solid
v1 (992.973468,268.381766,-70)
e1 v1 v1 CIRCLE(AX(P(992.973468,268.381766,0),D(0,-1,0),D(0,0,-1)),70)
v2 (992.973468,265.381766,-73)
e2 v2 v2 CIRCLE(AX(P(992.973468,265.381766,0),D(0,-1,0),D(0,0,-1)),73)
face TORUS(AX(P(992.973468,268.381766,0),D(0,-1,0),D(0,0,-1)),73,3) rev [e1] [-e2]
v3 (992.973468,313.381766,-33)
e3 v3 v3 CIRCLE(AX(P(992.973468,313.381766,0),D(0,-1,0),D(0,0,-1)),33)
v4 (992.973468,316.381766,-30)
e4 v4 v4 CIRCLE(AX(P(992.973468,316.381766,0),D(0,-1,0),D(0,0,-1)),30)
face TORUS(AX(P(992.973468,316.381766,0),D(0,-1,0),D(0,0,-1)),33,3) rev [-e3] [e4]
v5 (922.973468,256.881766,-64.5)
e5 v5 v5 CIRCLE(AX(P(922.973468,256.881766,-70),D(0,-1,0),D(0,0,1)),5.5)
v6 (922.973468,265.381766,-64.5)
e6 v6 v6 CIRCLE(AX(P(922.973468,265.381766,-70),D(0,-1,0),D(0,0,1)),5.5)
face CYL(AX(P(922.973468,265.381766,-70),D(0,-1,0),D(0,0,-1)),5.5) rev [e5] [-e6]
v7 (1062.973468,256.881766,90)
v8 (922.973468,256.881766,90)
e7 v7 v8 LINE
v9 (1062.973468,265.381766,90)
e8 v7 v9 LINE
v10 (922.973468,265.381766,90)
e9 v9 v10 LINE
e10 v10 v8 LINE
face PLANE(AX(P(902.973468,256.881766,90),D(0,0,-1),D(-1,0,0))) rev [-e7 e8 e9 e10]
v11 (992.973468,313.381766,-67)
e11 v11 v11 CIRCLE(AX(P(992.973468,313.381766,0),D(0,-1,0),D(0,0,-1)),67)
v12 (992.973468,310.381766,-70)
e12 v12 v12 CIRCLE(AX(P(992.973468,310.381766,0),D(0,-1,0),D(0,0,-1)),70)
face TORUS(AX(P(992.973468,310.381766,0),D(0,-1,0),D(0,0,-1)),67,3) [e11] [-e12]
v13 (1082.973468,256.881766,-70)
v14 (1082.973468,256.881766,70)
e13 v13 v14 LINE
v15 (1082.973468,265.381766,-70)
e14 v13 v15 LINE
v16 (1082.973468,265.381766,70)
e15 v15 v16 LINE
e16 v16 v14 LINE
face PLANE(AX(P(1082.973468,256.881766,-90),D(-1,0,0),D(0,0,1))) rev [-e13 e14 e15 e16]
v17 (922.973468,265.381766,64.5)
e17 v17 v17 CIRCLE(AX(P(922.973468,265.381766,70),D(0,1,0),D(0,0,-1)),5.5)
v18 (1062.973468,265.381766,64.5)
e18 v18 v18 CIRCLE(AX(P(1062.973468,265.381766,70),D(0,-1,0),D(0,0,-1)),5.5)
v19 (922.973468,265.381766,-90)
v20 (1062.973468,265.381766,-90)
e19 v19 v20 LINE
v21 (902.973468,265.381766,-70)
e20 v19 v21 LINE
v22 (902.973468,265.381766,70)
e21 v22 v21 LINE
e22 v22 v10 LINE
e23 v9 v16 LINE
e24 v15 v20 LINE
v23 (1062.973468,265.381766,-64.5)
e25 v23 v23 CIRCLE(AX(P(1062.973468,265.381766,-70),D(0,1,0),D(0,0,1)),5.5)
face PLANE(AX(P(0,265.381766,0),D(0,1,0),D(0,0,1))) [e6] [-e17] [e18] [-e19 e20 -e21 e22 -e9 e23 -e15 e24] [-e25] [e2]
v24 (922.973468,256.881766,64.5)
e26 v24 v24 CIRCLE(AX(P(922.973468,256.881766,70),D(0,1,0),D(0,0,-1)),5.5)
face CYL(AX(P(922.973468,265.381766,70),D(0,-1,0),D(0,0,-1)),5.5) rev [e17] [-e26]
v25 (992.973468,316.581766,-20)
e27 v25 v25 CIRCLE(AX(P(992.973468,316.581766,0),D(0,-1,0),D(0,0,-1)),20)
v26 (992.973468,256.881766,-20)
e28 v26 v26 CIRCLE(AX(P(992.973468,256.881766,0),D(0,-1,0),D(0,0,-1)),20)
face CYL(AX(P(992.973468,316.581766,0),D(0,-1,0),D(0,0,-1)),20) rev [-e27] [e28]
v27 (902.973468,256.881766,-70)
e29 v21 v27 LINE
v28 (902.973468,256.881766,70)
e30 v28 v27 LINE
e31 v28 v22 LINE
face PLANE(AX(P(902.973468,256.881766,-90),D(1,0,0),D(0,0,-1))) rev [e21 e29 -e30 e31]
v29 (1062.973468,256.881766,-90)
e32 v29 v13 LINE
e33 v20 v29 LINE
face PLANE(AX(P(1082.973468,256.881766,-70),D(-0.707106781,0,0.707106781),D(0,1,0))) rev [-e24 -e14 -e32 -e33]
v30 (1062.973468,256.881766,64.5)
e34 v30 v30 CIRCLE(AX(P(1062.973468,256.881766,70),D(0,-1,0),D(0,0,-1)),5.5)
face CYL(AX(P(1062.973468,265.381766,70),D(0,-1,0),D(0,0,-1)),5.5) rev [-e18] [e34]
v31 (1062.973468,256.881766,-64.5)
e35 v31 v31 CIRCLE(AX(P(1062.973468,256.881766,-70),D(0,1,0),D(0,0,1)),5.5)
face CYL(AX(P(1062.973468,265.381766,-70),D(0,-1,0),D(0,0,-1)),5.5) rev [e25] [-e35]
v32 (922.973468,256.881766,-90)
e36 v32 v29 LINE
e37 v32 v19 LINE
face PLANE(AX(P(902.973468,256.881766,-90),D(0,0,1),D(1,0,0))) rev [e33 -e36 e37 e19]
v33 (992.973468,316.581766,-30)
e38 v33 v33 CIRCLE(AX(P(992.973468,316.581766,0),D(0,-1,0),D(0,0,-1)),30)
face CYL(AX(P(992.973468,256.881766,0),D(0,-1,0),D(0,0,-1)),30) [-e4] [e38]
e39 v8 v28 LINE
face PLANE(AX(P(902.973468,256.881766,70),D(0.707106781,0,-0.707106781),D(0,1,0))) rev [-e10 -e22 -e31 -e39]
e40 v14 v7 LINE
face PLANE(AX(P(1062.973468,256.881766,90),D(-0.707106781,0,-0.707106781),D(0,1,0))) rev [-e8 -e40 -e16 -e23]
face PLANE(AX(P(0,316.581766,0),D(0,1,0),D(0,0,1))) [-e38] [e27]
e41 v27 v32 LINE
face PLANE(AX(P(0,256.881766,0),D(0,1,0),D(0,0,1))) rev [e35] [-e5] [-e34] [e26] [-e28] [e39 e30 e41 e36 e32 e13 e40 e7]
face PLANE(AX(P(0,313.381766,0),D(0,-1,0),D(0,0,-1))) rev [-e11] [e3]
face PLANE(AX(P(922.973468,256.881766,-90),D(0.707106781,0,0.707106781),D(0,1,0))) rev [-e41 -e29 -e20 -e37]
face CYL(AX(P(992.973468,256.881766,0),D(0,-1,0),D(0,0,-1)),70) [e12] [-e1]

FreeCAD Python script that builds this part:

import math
import FreeCAD as App
import Part
import Sketcher
from FreeCAD import Vector
Q = App.Units.Quantity


def edges_at(feature, points):
    """Names of the edges that pass closest to the given points."""
    edges = feature.Shape.Edges
    near = lambda p: min(range(len(edges)), key=lambda i: edges[i].distToShape(Part.Vertex(*p))[0])
    return sorted({f"Edge{near(p) + 1}" for p in points})

doc = App.newDocument("Part")
body = doc.addObject("PartDesign::Body", "Body")

# Sketch on XY plane
sketch1 = body.newObject("Sketcher::SketchObject", "Sketch")
sketch1.AttachmentSupport = (doc.getObject("XY_Plane"), [""])
sketch1.MapMode = "FlatFace"
sketch1.addGeometry([
    Part.ArcOfCircle(Part.Circle(Vector(919.97, 268.38, 0), Vector(0, 0, 1), 3), math.radians(-90), math.radians(0)),  # 0
    Part.LineSegment(Vector(919.97, 265.38, 0), Vector(992.97, 265.38, 0)),  # 1
    Part.LineSegment(Vector(992.97, 265.38, 0), Vector(992.97, 316.58, 0)),  # 2
    Part.LineSegment(Vector(992.97, 316.58, 0), Vector(962.97, 316.58, 0)),  # 3
    Part.LineSegment(Vector(962.97, 316.58, 0), Vector(962.97, 316.38, 0)),  # 4
    Part.ArcOfCircle(Part.Circle(Vector(959.97, 316.38, 0), Vector(0, 0, 1), 3), math.radians(-90), math.radians(0)),  # 5
    Part.LineSegment(Vector(959.97, 313.38, 0), Vector(925.97, 313.38, 0)),  # 6
    Part.ArcOfCircle(Part.Circle(Vector(925.97, 310.38, 0), Vector(0, 0, 1), 3), math.radians(90), math.radians(180)),  # 7
    Part.LineSegment(Vector(922.97, 310.38, 0), Vector(922.97, 268.38, 0)),  # 8
], False)
sketch1.addGeometry(Part.LineSegment(Vector(992.97, 265.38, 0), Vector(992.97, 316.58, 0)), True)  # axis
sketch1.addConstraint([
    Sketcher.Constraint("Tangent", 0, 1, 1, 1),
    Sketcher.Constraint("Coincident", 1, 2, 2, 1),
    Sketcher.Constraint("Coincident", 2, 2, 3, 1),
    Sketcher.Constraint("Coincident", 3, 2, 4, 1),
    Sketcher.Constraint("Tangent", 4, 2, 5, 2),
    Sketcher.Constraint("Tangent", 5, 1, 6, 1),
    Sketcher.Constraint("Tangent", 6, 2, 7, 1),
    Sketcher.Constraint("Tangent", 7, 2, 8, 1),
    Sketcher.Constraint("Tangent", 8, 2, 0, 2),
    Sketcher.Constraint("Horizontal", 1),
    Sketcher.Constraint("Vertical", 2),
    Sketcher.Constraint("Horizontal", 3),
    Sketcher.Constraint("Vertical", 4),
    Sketcher.Constraint("Horizontal", 6),
    Sketcher.Constraint("Vertical", 8),
    Sketcher.Constraint("Vertical", 9),
    Sketcher.Constraint("Coincident", 9, 1, 1, 2),
    Sketcher.Constraint("Equal", 0, 5),
    Sketcher.Constraint("Equal", 5, 7),
    Sketcher.Constraint("Horizontal", 3, 2, 9, 2),
    Sketcher.Constraint("Radius", 0, Q("3 mm")),
    Sketcher.Constraint("DistanceX", 1, 1, 1, 2, Q("73 mm")),
    Sketcher.Constraint("DistanceX", 3, 2, 3, 1, Q("30 mm")),
    Sketcher.Constraint("DistanceY", 8, 2, 8, 1, Q("42 mm")),
    Sketcher.Constraint("DistanceY", 2, 1, 2, 2, Q("51.2 mm")),
    Sketcher.Constraint("DistanceX", -1, 1, 0, 3, Q("919.973468 mm")),
    Sketcher.Constraint("DistanceY", -1, 1, 0, 3, Q("268.381766 mm")),
])
revolution = body.newObject("PartDesign::Revolution", "Revolution")
revolution.Profile = sketch1
revolution.ReferenceAxis = (sketch1, ["Axis0"])
revolution.Angle = 360

# Sketch on XZ plane
sketch2 = body.newObject("Sketcher::SketchObject", "Sketch001")
sketch2.AttachmentSupport = (doc.getObject("XZ_Plane"), [""])
sketch2.MapMode = "FlatFace"
sketch2.AttachmentOffset = App.Placement(Vector(0, 0, -265.381766), App.Rotation())
sketch2.addGeometry([
    Part.LineSegment(Vector(903, 90, 0), Vector(903, -90, 0)),
    Part.LineSegment(Vector(903, -90, 0), Vector(1083, -90, 0)),
    Part.LineSegment(Vector(1083, -90, 0), Vector(1083, 90, 0)),
    Part.LineSegment(Vector(1083, 90, 0), Vector(903, 90, 0)),
], False)
sketch2.addConstraint([
    Sketcher.Constraint("Coincident", 0, 2, 1, 1),
    Sketcher.Constraint("Coincident", 1, 2, 2, 1),
    Sketcher.Constraint("Coincident", 2, 2, 3, 1),
    Sketcher.Constraint("Coincident", 3, 2, 0, 1),
    Sketcher.Constraint("Vertical", 0),
    Sketcher.Constraint("Horizontal", 1),
    Sketcher.Constraint("Vertical", 2),
    Sketcher.Constraint("Horizontal", 3),
    Sketcher.Constraint("Equal", 3, 0),
    Sketcher.Constraint("DistanceX", 1, 1, 1, 2, Q("180 mm")),
    Sketcher.Constraint("DistanceY", 0, 2, -1, 1, Q("90 mm")),
    Sketcher.Constraint("DistanceX", -1, 1, 0, 2, Q("902.973468 mm")),
])
pad1 = body.newObject("PartDesign::Pad", "Pad")
pad1.Profile = sketch2
pad1.Length = 8.5
doc.recompute()

chamfer = body.newObject("PartDesign::Chamfer", "Chamfer")
chamfer.Base = (pad1, edges_at(pad1, [
    (1082.973, 261.132, -90),
    (1082.973, 261.132, 90),
    (902.973, 261.132, 90),
    (902.973, 261.132, -90),
]))
chamfer.Size = 20

# Sketch on XZ plane
sketch3 = body.newObject("Sketcher::SketchObject", "Sketch002")
sketch3.AttachmentSupport = (doc.getObject("XZ_Plane"), [""])
sketch3.MapMode = "FlatFace"
sketch3.AttachmentOffset = App.Placement(Vector(0, 0, -256.881766), App.Rotation())
sketch3.addGeometry(Part.Circle(Vector(1063, 70, 0), Vector(0, 0, 1), 6), False)
sketch3.addConstraint([
    Sketcher.Constraint("Diameter", 0, Q("11 mm")),
    Sketcher.Constraint("DistanceY", -1, 1, 0, 3, Q("70 mm")),
    Sketcher.Constraint("DistanceX", -1, 1, 0, 3, Q("1062.973468 mm")),
])
pocket1 = body.newObject("PartDesign::Pocket", "Pocket")
pocket1.Profile = sketch3
pocket1.Length = 8.5
doc.recompute()

mirrored = body.newObject("PartDesign::Mirrored", "Mirrored")
mirrored.Originals = [pocket1]
mirrored.MirrorPlane = (doc.getObject("XY_Plane"), [""])
body.Tip = mirrored
doc.recompute()

datumplane = body.newObject("PartDesign::Plane", "DatumPlane")
datumplane.AttachmentSupport = (doc.getObject("YZ_Plane"), [""])
datumplane.MapMode = "FlatFace"
datumplane.AttachmentOffset = App.Placement(Vector(0, 0, 992.973468), App.Rotation())
mirrored2 = body.newObject("PartDesign::Mirrored", "Mirrored001")
mirrored2.Originals = [pocket1]
mirrored2.MirrorPlane = (datumplane, [""])
body.Tip = mirrored2

# Sketch on XZ plane
sketch4 = body.newObject("Sketcher::SketchObject", "Sketch003")
sketch4.AttachmentSupport = (doc.getObject("XZ_Plane"), [""])
sketch4.MapMode = "FlatFace"
sketch4.AttachmentOffset = App.Placement(Vector(0, 0, -256.881766), App.Rotation())
sketch4.addGeometry(Part.Circle(Vector(923, -70, 0), Vector(0, 0, 1), 6), False)
sketch4.addConstraint([
    Sketcher.Constraint("Diameter", 0, Q("11 mm")),
    Sketcher.Constraint("DistanceY", 0, 3, -1, 1, Q("70 mm")),
    Sketcher.Constraint("DistanceX", -1, 1, 0, 3, Q("922.973468 mm")),
])
pocket2 = body.newObject("PartDesign::Pocket", "Pocket001")
pocket2.Profile = sketch4
pocket2.Length = 8.5

# Sketch on XZ plane
sketch5 = body.newObject("Sketcher::SketchObject", "Sketch004")
sketch5.AttachmentSupport = (doc.getObject("XZ_Plane"), [""])
sketch5.MapMode = "FlatFace"
sketch5.AttachmentOffset = App.Placement(Vector(0, 0, -256.881766), App.Rotation())
sketch5.addGeometry(Part.Circle(Vector(993, 0, 0), Vector(0, 0, 1), 20), False)
sketch5.addConstraint([
    Sketcher.Constraint("PointOnObject", 0, 3, -1),
    Sketcher.Constraint("Diameter", 0, Q("40 mm")),
    Sketcher.Constraint("DistanceX", -1, 1, 0, 3, Q("992.973468 mm")),
])
pocket3 = body.newObject("PartDesign::Pocket", "Pocket002")
pocket3.Profile = sketch5
pocket3.Type = "ThroughAll"

doc.recompute()
